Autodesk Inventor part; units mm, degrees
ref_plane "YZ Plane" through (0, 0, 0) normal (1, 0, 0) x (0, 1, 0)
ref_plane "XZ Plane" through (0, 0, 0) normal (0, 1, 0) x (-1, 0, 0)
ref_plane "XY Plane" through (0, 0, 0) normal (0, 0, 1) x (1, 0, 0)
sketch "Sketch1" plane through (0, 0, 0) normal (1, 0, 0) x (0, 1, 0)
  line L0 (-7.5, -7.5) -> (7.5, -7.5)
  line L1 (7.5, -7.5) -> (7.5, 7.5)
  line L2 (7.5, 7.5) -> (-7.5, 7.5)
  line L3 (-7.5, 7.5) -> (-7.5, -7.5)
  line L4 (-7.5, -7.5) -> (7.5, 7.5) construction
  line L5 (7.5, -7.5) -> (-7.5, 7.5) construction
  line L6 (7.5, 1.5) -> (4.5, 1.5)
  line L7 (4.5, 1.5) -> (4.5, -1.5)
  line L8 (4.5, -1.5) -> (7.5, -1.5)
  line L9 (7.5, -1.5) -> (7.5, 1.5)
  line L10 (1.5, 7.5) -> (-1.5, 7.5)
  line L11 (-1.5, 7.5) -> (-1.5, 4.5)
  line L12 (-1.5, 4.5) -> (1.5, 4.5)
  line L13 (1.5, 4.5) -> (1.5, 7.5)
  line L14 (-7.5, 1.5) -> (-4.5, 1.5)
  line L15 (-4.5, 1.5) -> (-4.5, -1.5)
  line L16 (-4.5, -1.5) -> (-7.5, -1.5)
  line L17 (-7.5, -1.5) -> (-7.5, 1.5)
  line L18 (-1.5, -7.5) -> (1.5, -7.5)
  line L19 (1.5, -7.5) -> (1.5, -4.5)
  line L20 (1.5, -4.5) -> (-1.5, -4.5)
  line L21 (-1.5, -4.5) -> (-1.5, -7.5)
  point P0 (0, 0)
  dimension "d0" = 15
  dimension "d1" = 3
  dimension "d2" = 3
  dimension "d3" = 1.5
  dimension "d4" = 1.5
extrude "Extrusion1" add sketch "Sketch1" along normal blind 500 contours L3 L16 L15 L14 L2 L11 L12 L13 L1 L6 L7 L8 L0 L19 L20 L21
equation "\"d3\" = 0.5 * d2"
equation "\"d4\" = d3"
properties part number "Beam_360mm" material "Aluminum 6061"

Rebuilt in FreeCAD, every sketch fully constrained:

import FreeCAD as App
import Part
import Sketcher

V = App.Vector
Q = App.Units.Quantity

doc = App.newDocument("Part")
body = doc.addObject("PartDesign::Body", "Body")

# Sketch on YZ plane
sketch1 = doc.addObject("Sketcher::SketchObject", "Sketch")
body.addObject(sketch1)
sketch1.AttachmentSupport = (doc.YZ_Plane, [""])
sketch1.MapMode = "FlatFace"
sketch1.addGeometry(Part.LineSegment(V(-7.5, -1.5, 0), V(-7.5, -7.5, 0)), False)
sketch1.addGeometry(Part.LineSegment(V(-7.5, -7.5, 0), V(-1.5, -7.5, 0)), False)
sketch1.addGeometry(Part.LineSegment(V(-1.5, -7.5, 0), V(-1.5, -4.5, 0)), False)
sketch1.addGeometry(Part.LineSegment(V(-1.5, -4.5, 0), V(1.5, -4.5, 0)), False)
sketch1.addGeometry(Part.LineSegment(V(1.5, -4.5, 0), V(1.5, -7.5, 0)), False)
sketch1.addGeometry(Part.LineSegment(V(1.5, -7.5, 0), V(7.5, -7.5, 0)), False)
sketch1.addGeometry(Part.LineSegment(V(7.5, -7.5, 0), V(7.5, -1.5, 0)), False)
sketch1.addGeometry(Part.LineSegment(V(7.5, -1.5, 0), V(4.5, -1.5, 0)), False)
sketch1.addGeometry(Part.LineSegment(V(4.5, -1.5, 0), V(4.5, 1.5, 0)), False)
sketch1.addGeometry(Part.LineSegment(V(4.5, 1.5, 0), V(7.5, 1.5, 0)), False)
sketch1.addGeometry(Part.LineSegment(V(7.5, 1.5, 0), V(7.5, 7.5, 0)), False)
sketch1.addGeometry(Part.LineSegment(V(7.5, 7.5, 0), V(1.5, 7.5, 0)), False)
sketch1.addGeometry(Part.LineSegment(V(1.5, 7.5, 0), V(1.5, 4.5, 0)), False)
sketch1.addGeometry(Part.LineSegment(V(1.5, 4.5, 0), V(-1.5, 4.5, 0)), False)
sketch1.addGeometry(Part.LineSegment(V(-1.5, 4.5, 0), V(-1.5, 7.5, 0)), False)
sketch1.addGeometry(Part.LineSegment(V(-1.5, 7.5, 0), V(-7.5, 7.5, 0)), False)
sketch1.addGeometry(Part.LineSegment(V(-7.5, 7.5, 0), V(-7.5, 1.5, 0)), False)
sketch1.addGeometry(Part.LineSegment(V(-7.5, 1.5, 0), V(-4.5, 1.5, 0)), False)
sketch1.addGeometry(Part.LineSegment(V(-4.5, 1.5, 0), V(-4.5, -1.5, 0)), False)
sketch1.addGeometry(Part.LineSegment(V(-4.5, -1.5, 0), V(-7.5, -1.5, 0)), False)
sketch1.addConstraint(Sketcher.Constraint("Coincident", 0, 2, 1, 1))
sketch1.addConstraint(Sketcher.Constraint("Coincident", 1, 2, 2, 1))
sketch1.addConstraint(Sketcher.Constraint("Coincident", 2, 2, 3, 1))
sketch1.addConstraint(Sketcher.Constraint("Coincident", 3, 2, 4, 1))
sketch1.addConstraint(Sketcher.Constraint("Coincident", 4, 2, 5, 1))
sketch1.addConstraint(Sketcher.Constraint("Coincident", 5, 2, 6, 1))
sketch1.addConstraint(Sketcher.Constraint("Coincident", 6, 2, 7, 1))
sketch1.addConstraint(Sketcher.Constraint("Coincident", 7, 2, 8, 1))
sketch1.addConstraint(Sketcher.Constraint("Coincident", 8, 2, 9, 1))
sketch1.addConstraint(Sketcher.Constraint("Coincident", 9, 2, 10, 1))
sketch1.addConstraint(Sketcher.Constraint("Coincident", 10, 2, 11, 1))
sketch1.addConstraint(Sketcher.Constraint("Coincident", 11, 2, 12, 1))
sketch1.addConstraint(Sketcher.Constraint("Coincident", 12, 2, 13, 1))
sketch1.addConstraint(Sketcher.Constraint("Coincident", 13, 2, 14, 1))
sketch1.addConstraint(Sketcher.Constraint("Coincident", 14, 2, 15, 1))
sketch1.addConstraint(Sketcher.Constraint("Coincident", 15, 2, 16, 1))
sketch1.addConstraint(Sketcher.Constraint("Coincident", 16, 2, 17, 1))
sketch1.addConstraint(Sketcher.Constraint("Coincident", 17, 2, 18, 1))
sketch1.addConstraint(Sketcher.Constraint("Coincident", 18, 2, 19, 1))
sketch1.addConstraint(Sketcher.Constraint("Coincident", 19, 2, 0, 1))
sketch1.addConstraint(Sketcher.Constraint("Vertical", 0))
sketch1.addConstraint(Sketcher.Constraint("Horizontal", 1))
sketch1.addConstraint(Sketcher.Constraint("Vertical", 2))
sketch1.addConstraint(Sketcher.Constraint("Horizontal", 3))
sketch1.addConstraint(Sketcher.Constraint("Vertical", 4))
sketch1.addConstraint(Sketcher.Constraint("Horizontal", 5))
sketch1.addConstraint(Sketcher.Constraint("Vertical", 6))
sketch1.addConstraint(Sketcher.Constraint("Horizontal", 7))
sketch1.addConstraint(Sketcher.Constraint("Vertical", 8))
sketch1.addConstraint(Sketcher.Constraint("Horizontal", 9))
sketch1.addConstraint(Sketcher.Constraint("Vertical", 10))
sketch1.addConstraint(Sketcher.Constraint("Horizontal", 11))
sketch1.addConstraint(Sketcher.Constraint("Vertical", 12))
sketch1.addConstraint(Sketcher.Constraint("Horizontal", 13))
sketch1.addConstraint(Sketcher.Constraint("Vertical", 14))
sketch1.addConstraint(Sketcher.Constraint("Horizontal", 15))
sketch1.addConstraint(Sketcher.Constraint("Vertical", 16))
sketch1.addConstraint(Sketcher.Constraint("Horizontal", 17))
sketch1.addConstraint(Sketcher.Constraint("Vertical", 18))
sketch1.addConstraint(Sketcher.Constraint("Horizontal", 19))
sketch1.addConstraint(Sketcher.Constraint("Symmetric", 0, 2, 10, 2, -1, 1))
sketch1.addConstraint(Sketcher.Constraint("Symmetric", 2, 2, 12, 2, -1, 1))
sketch1.addConstraint(Sketcher.Constraint("Symmetric", 4, 2, 14, 2, -1, 1))
sketch1.addConstraint(Sketcher.Constraint("Symmetric", 6, 2, 16, 2, -1, 1))
sketch1.addConstraint(Sketcher.Constraint("Symmetric", 8, 2, 18, 2, -1, 1))
sketch1.addConstraint(Sketcher.Constraint("Symmetric", 1, 2, 4, 2, -2))
sketch1.addConstraint(Sketcher.Constraint("Symmetric", 9, 2, 16, 2, -2))
sketch1.addConstraint(Sketcher.Constraint("Equal", 3, 7))
sketch1.addConstraint(Sketcher.Constraint("Equal", 15, 0))
sketch1.addConstraint(Sketcher.Constraint("Equal", 19, 2))
sketch1.addConstraint(Sketcher.Constraint("Equal", 4, 8))
sketch1.addConstraint(Sketcher.Constraint("DistanceX", 3, 1, 3, 2, Q("3 mm")))
sketch1.addConstraint(Sketcher.Constraint("DistanceX", 0, 2, 5, 2, Q("15 mm")))
pad1 = doc.addObject("PartDesign::Pad", "Pad")
body.addObject(pad1)
pad1.Profile = sketch1
pad1.Length = 500

doc.recompute()
